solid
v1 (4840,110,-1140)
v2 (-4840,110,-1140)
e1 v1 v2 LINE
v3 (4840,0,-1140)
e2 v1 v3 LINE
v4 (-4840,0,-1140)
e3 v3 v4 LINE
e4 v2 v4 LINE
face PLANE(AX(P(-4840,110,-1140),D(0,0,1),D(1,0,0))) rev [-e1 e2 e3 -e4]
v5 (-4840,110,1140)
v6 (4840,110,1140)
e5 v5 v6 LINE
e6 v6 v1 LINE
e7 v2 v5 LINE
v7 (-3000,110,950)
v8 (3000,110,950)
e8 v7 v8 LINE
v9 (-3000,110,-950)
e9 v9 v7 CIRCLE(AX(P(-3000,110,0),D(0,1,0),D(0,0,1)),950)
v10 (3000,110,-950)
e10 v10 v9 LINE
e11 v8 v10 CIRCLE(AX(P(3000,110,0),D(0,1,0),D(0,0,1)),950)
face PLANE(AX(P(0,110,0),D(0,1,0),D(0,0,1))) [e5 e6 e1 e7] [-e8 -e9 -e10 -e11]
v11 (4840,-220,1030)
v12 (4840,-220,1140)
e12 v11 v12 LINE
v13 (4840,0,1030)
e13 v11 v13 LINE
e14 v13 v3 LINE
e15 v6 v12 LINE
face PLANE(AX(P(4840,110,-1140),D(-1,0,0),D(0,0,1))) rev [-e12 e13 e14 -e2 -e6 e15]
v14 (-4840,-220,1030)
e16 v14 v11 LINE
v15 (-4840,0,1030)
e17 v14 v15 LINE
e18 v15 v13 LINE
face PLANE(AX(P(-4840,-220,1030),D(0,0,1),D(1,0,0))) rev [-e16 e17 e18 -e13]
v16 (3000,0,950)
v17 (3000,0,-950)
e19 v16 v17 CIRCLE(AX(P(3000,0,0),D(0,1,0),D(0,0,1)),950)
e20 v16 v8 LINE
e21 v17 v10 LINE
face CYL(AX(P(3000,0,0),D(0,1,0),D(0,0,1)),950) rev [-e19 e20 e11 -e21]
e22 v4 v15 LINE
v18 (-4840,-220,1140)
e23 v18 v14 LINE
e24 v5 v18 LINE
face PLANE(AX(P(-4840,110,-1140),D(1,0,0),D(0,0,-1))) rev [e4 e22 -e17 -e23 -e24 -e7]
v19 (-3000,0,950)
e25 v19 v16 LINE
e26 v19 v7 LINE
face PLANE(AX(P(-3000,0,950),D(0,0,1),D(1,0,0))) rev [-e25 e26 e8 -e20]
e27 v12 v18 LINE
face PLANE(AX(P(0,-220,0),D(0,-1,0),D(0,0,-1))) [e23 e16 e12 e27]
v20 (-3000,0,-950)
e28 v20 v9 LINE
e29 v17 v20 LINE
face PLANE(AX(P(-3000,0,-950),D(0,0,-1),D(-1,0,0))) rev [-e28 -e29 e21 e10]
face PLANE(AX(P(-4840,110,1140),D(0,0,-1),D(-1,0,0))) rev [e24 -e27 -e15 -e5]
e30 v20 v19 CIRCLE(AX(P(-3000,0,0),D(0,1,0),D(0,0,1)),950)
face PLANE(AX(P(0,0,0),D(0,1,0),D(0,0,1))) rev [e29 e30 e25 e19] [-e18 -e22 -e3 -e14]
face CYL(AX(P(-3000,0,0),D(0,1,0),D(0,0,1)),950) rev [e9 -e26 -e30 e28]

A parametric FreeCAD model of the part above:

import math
import FreeCAD as App
import Part
import Sketcher

V = App.Vector
Q = App.Units.Quantity

doc = App.newDocument("Part")
body = doc.addObject("PartDesign::Body", "Body")

sketch1 = doc.addObject("Sketcher::SketchObject", "Sketch")
body.addObject(sketch1)
sketch1.AttachmentSupport = (doc.XZ_Plane, [""])
sketch1.MapMode = "FlatFace"
sketch1.addGeometry([
    Part.LineSegment(V(-4840, -1140, 0), V(-4840, 1140, 0)),
    Part.LineSegment(V(-4840, 1140, 0), V(4840, 1140, 0)),
    Part.LineSegment(V(4840, 1140, 0), V(4840, -1140, 0)),
    Part.LineSegment(V(4840, -1140, 0), V(-4840, -1140, 0)),
], False)
sketch1.addConstraint([
    Sketcher.Constraint("Coincident", 0, 2, 1, 1),
    Sketcher.Constraint("Coincident", 1, 2, 2, 1),
    Sketcher.Constraint("Coincident", 2, 2, 3, 1),
    Sketcher.Constraint("Coincident", 3, 2, 0, 1),
    Sketcher.Constraint("Vertical", 0),
    Sketcher.Constraint("Horizontal", 1),
    Sketcher.Constraint("Vertical", 2),
    Sketcher.Constraint("Horizontal", 3),
    Sketcher.Constraint("Symmetric", 0, 2, 2, 2, -1, 1),
    Sketcher.Constraint("DistanceX", 1, 1, 1, 2, Q("9680 mm")),
    Sketcher.Constraint("DistanceY", 0, 1, 0, 2, Q("2280 mm")),
])
pad1 = doc.addObject("PartDesign::Pad", "Pad")
body.addObject(pad1)
pad1.Profile = sketch1
pad1.Length = 110
pad1.Reversed = True

sketch2 = doc.addObject("Sketcher::SketchObject", "Sketch001")
body.addObject(sketch2)
sketch2.AttachmentSupport = (doc.XZ_Plane, [""])
sketch2.MapMode = "FlatFace"
sketch2.AttachmentOffset = App.Placement(V(0, 0, -110), App.Rotation())
sketch2.addGeometry([
    Part.LineSegment(V(3000, -950, 0), V(-3000, -950, 0)),
    Part.ArcOfCircle(Part.Circle(V(-3000, 0, 0), V(0, 0, 1), 950), math.radians(90), math.radians(270)),
    Part.LineSegment(V(-3000, 950, 0), V(3000, 950, 0)),
    Part.ArcOfCircle(Part.Circle(V(3000, 0, 0), V(0, 0, 1), 950), math.radians(-90), math.radians(90)),
], False)
sketch2.addConstraint([
    Sketcher.Constraint("Coincident", 0, 2, 1, 2),
    Sketcher.Constraint("Coincident", 1, 1, 2, 1),
    Sketcher.Constraint("Coincident", 2, 2, 3, 2),
    Sketcher.Constraint("Coincident", 3, 1, 0, 1),
    Sketcher.Constraint("Horizontal", 0),
    Sketcher.Constraint("Horizontal", 2),
    Sketcher.Constraint("Symmetric", 1, 3, 3, 3, -1, 1),
    Sketcher.Constraint("Vertical", 1, 3, 0, 2),
    Sketcher.Constraint("Vertical", 3, 3, 2, 2),
    Sketcher.Constraint("Equal", 0, 2),
    Sketcher.Constraint("Radius", 1, Q("950 mm")),
    Sketcher.Constraint("DistanceX", 0, 2, 0, 1, Q("6000 mm")),
    Sketcher.Constraint("DistanceX", 1, 3, -1, 1, Q("3000 mm")),
])
pocket1 = doc.addObject("PartDesign::Pocket", "Pocket")
body.addObject(pocket1)
pocket1.Profile = sketch2
pocket1.Length = 110
pocket1.Reversed = True

sketch3 = doc.addObject("Sketcher::SketchObject", "Sketch002")
body.addObject(sketch3)
sketch3.AttachmentSupport = (doc.XZ_Plane, [""])
sketch3.MapMode = "FlatFace"
sketch3.addGeometry([
    Part.LineSegment(V(-4840, 1140, 0), V(-4840, 1030, 0)),
    Part.LineSegment(V(-4840, 1030, 0), V(4840, 1030, 0)),
    Part.LineSegment(V(4840, 1030, 0), V(4840, 1140, 0)),
    Part.LineSegment(V(4840, 1140, 0), V(-4840, 1140, 0)),
], False)
sketch3.addConstraint([
    Sketcher.Constraint("Coincident", 0, 2, 1, 1),
    Sketcher.Constraint("Coincident", 1, 2, 2, 1),
    Sketcher.Constraint("Coincident", 2, 2, 3, 1),
    Sketcher.Constraint("Coincident", 3, 2, 0, 1),
    Sketcher.Constraint("Vertical", 0),
    Sketcher.Constraint("Horizontal", 1),
    Sketcher.Constraint("Vertical", 2),
    Sketcher.Constraint("Horizontal", 3),
    Sketcher.Constraint("DistanceX", 1, 1, 1, 2, Q("9680 mm")),
    Sketcher.Constraint("DistanceY", 0, 2, 0, 1, Q("110 mm")),
    Sketcher.Constraint("DistanceX", 0, 2, -1, 1, Q("4840 mm")),
    Sketcher.Constraint("DistanceY", -1, 1, 0, 2, Q("1030 mm")),
])
pad2 = doc.addObject("PartDesign::Pad", "Pad001")
body.addObject(pad2)
pad2.Profile = sketch3
pad2.Length = 220

doc.recompute()
